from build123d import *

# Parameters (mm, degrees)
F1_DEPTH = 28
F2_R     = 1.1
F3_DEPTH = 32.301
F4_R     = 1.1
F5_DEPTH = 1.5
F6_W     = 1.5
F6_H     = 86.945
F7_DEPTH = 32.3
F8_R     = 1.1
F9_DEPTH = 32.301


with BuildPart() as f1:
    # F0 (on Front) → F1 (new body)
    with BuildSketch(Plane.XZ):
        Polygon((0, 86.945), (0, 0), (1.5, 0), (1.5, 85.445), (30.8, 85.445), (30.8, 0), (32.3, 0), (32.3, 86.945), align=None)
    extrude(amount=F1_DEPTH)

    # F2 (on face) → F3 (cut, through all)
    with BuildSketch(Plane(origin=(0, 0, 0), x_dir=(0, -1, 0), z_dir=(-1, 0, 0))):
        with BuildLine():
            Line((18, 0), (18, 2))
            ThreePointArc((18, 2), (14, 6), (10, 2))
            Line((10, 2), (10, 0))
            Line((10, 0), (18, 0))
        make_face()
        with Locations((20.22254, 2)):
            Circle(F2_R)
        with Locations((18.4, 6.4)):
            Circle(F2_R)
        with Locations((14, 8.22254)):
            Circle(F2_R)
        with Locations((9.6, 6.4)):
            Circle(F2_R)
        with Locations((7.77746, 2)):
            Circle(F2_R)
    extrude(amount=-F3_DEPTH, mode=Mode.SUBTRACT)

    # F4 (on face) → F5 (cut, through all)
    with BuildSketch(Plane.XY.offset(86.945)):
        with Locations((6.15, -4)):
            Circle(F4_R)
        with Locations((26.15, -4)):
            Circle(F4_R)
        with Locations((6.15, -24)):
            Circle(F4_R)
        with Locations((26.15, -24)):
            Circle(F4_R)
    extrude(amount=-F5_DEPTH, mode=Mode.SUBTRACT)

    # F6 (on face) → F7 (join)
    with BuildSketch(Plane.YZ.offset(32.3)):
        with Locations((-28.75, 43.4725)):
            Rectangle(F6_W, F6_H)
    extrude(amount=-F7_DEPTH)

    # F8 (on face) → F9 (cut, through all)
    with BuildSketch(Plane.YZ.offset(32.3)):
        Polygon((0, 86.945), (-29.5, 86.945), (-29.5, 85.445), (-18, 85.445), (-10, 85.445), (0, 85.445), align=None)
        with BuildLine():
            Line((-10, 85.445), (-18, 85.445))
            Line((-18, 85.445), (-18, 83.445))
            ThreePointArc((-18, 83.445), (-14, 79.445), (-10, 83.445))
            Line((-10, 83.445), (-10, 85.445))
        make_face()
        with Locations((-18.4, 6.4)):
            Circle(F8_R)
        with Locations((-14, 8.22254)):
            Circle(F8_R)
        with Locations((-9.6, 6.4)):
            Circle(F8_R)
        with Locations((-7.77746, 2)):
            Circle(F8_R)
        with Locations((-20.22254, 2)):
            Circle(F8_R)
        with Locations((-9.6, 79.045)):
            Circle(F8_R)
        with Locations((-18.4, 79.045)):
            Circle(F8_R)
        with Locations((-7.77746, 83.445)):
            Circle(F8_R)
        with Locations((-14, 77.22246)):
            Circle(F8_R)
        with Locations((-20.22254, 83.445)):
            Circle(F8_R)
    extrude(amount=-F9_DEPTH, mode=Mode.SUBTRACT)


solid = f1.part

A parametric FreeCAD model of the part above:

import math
import FreeCAD as App
import Part
import Sketcher

V = App.Vector
Q = App.Units.Quantity

doc = App.newDocument("Part")
body = doc.addObject("PartDesign::Body", "Body")

# Sketch on XZ plane
sketch1 = body.newObject("Sketcher::SketchObject", "Sketch")
sketch1.AttachmentSupport = (doc.getObject("XZ_Plane"), [""])
sketch1.MapMode = "FlatFace"
sketch1.addGeometry(Part.LineSegment(V(0, 86.945, 0), V(0, 0, 0)), False)
sketch1.addGeometry(Part.LineSegment(V(0, 0, 0), V(1.5, 0, 0)), False)
sketch1.addGeometry(Part.LineSegment(V(1.5, 0, 0), V(1.5, 85.445, 0)), False)
sketch1.addGeometry(Part.LineSegment(V(1.5, 85.445, 0), V(30.8, 85.445, 0)), False)
sketch1.addGeometry(Part.LineSegment(V(30.8, 85.445, 0), V(30.8, 0, 0)), False)
sketch1.addGeometry(Part.LineSegment(V(30.8, 0, 0), V(32.3, 0, 0)), False)
sketch1.addGeometry(Part.LineSegment(V(32.3, 0, 0), V(32.3, 86.945, 0)), False)
sketch1.addGeometry(Part.LineSegment(V(32.3, 86.945, 0), V(0, 86.945, 0)), False)
sketch1.addConstraint(Sketcher.Constraint("Coincident", 0, 2, 1, 1))
sketch1.addConstraint(Sketcher.Constraint("Coincident", 1, 2, 2, 1))
sketch1.addConstraint(Sketcher.Constraint("Coincident", 2, 2, 3, 1))
sketch1.addConstraint(Sketcher.Constraint("Coincident", 3, 2, 4, 1))
sketch1.addConstraint(Sketcher.Constraint("Coincident", 4, 2, 5, 1))
sketch1.addConstraint(Sketcher.Constraint("Coincident", 5, 2, 6, 1))
sketch1.addConstraint(Sketcher.Constraint("Coincident", 6, 2, 7, 1))
sketch1.addConstraint(Sketcher.Constraint("Coincident", 7, 2, 0, 1))
sketch1.addConstraint(Sketcher.Constraint("Vertical", 0))
sketch1.addConstraint(Sketcher.Constraint("Horizontal", 1))
sketch1.addConstraint(Sketcher.Constraint("Vertical", 2))
sketch1.addConstraint(Sketcher.Constraint("Horizontal", 3))
sketch1.addConstraint(Sketcher.Constraint("Vertical", 4))
sketch1.addConstraint(Sketcher.Constraint("Horizontal", 5))
sketch1.addConstraint(Sketcher.Constraint("Vertical", 6))
sketch1.addConstraint(Sketcher.Constraint("Horizontal", 7))
sketch1.addConstraint(Sketcher.Constraint("Coincident", 0, 2, -1, 1))
sketch1.addConstraint(Sketcher.Constraint("PointOnObject", 4, 2, -1))
sketch1.addConstraint(Sketcher.Constraint("Equal", 1, 5))
sketch1.addConstraint(Sketcher.Constraint("DistanceX", 1, 1, 1, 2, Q("1.5 mm")))
sketch1.addConstraint(Sketcher.Constraint("DistanceX", 3, 1, 3, 2, Q("29.3 mm")))
sketch1.addConstraint(Sketcher.Constraint("DistanceY", 3, 2, 6, 2, Q("1.5 mm")))
sketch1.addConstraint(Sketcher.Constraint("DistanceY", 0, 2, 0, 1, Q("86.945 mm")))
pad1 = body.newObject("PartDesign::Pad", "Pad")
pad1.Profile = sketch1
pad1.Length = 28

# Sketch on YZ plane
sketch2 = body.newObject("Sketcher::SketchObject", "Sketch001")
sketch2.AttachmentSupport = (doc.getObject("YZ_Plane"), [""])
sketch2.MapMode = "FlatFace"
sketch2.addGeometry(Part.LineSegment(V(-18, 0, 0), V(-18, 2, 0)), False)
sketch2.addGeometry(Part.ArcOfCircle(Part.Circle(V(-14, 2, 0), V(0, 0, 1), 4), math.radians(0), math.radians(180)), False)
sketch2.addGeometry(Part.LineSegment(V(-10, 2, 0), V(-10, 0, 0)), False)
sketch2.addGeometry(Part.LineSegment(V(-10, 0, 0), V(-18, 0, 0)), False)
sketch2.addGeometry(Part.Circle(V(-20.22254, 2, 0), V(0, 0, 1), 1.1), False)
sketch2.addGeometry(Part.Circle(V(-18.4, 6.4, 0), V(0, 0, 1), 1.1), False)
sketch2.addGeometry(Part.Circle(V(-14, 8.22254, 0), V(0, 0, 1), 1.1), False)
sketch2.addGeometry(Part.Circle(V(-9.6, 6.4, 0), V(0, 0, 1), 1.1), False)
sketch2.addGeometry(Part.Circle(V(-7.77746, 2, 0), V(0, 0, 1), 1.1), False)
sketch2.addConstraint(Sketcher.Constraint("Tangent", 0, 2, 1, 2))
sketch2.addConstraint(Sketcher.Constraint("Tangent", 1, 1, 2, 1))
sketch2.addConstraint(Sketcher.Constraint("Coincident", 2, 2, 3, 1))
sketch2.addConstraint(Sketcher.Constraint("Coincident", 3, 2, 0, 1))
sketch2.addConstraint(Sketcher.Constraint("Vertical", 0))
sketch2.addConstraint(Sketcher.Constraint("Vertical", 2))
sketch2.addConstraint(Sketcher.Constraint("Horizontal", 3))
sketch2.addConstraint(Sketcher.Constraint("Equal", 4, 5))
sketch2.addConstraint(Sketcher.Constraint("Equal", 5, 6))
sketch2.addConstraint(Sketcher.Constraint("Equal", 6, 7))
sketch2.addConstraint(Sketcher.Constraint("Equal", 7, 8))
sketch2.addConstraint(Sketcher.Constraint("PointOnObject", 2, 2, -1))
sketch2.addConstraint(Sketcher.Constraint("Horizontal", 1, 3, 4, 3))
sketch2.addConstraint(Sketcher.Constraint("Horizontal", 5, 3, 7, 3))
sketch2.addConstraint(Sketcher.Constraint("Horizontal", 4, 3, 8, 3))
sketch2.addConstraint(Sketcher.Constraint("Vertical", 1, 3, 6, 3))
sketch2.addConstraint(Sketcher.Constraint("Radius", 1, Q("4 mm")))
sketch2.addConstraint(Sketcher.Constraint("Diameter", 4, Q("2.2 mm")))
sketch2.addConstraint(Sketcher.Constraint("DistanceY", 0, 1, 0, 2, Q("2 mm")))
sketch2.addConstraint(Sketcher.Constraint("DistanceX", 1, 3, -1, 1, Q("14 mm")))
sketch2.addConstraint(Sketcher.Constraint("DistanceX", 5, 3, -1, 1, Q("18.4 mm")))
sketch2.addConstraint(Sketcher.Constraint("DistanceY", -1, 1, 5, 3, Q("6.4 mm")))
sketch2.addConstraint(Sketcher.Constraint("DistanceX", 7, 3, -1, 1, Q("9.6 mm")))
sketch2.addConstraint(Sketcher.Constraint("DistanceX", 4, 3, -1, 1, Q("20.22254 mm")))
sketch2.addConstraint(Sketcher.Constraint("DistanceY", -1, 1, 6, 3, Q("8.22254 mm")))
sketch2.addConstraint(Sketcher.Constraint("DistanceX", 8, 3, -1, 1, Q("7.77746 mm")))
pocket1 = body.newObject("PartDesign::Pocket", "Pocket")
pocket1.Profile = sketch2
pocket1.Type = "ThroughAll"
pocket1.Reversed = True

# Sketch on XY plane
sketch3 = body.newObject("Sketcher::SketchObject", "Sketch002")
sketch3.AttachmentSupport = (doc.getObject("XY_Plane"), [""])
sketch3.MapMode = "FlatFace"
sketch3.AttachmentOffset = App.Placement(V(0, 0, 86.945), App.Rotation())
sketch3.addGeometry(Part.Circle(V(6.15, -4, 0), V(0, 0, 1), 1.1), False)
sketch3.addGeometry(Part.Circle(V(26.15, -4, 0), V(0, 0, 1), 1.1), False)
sketch3.addGeometry(Part.Circle(V(6.15, -24, 0), V(0, 0, 1), 1.1), False)
sketch3.addGeometry(Part.Circle(V(26.15, -24, 0), V(0, 0, 1), 1.1), False)
sketch3.addConstraint(Sketcher.Constraint("Equal", 0, 1))
sketch3.addConstraint(Sketcher.Constraint("Equal", 1, 2))
sketch3.addConstraint(Sketcher.Constraint("Equal", 2, 3))
sketch3.addConstraint(Sketcher.Constraint("Horizontal", 0, 3, 1, 3))
sketch3.addConstraint(Sketcher.Constraint("Horizontal", 2, 3, 3, 3))
sketch3.addConstraint(Sketcher.Constraint("Vertical", 0, 3, 2, 3))
sketch3.addConstraint(Sketcher.Constraint("Vertical", 1, 3, 3, 3))
sketch3.addConstraint(Sketcher.Constraint("Diameter", 0, Q("2.2 mm")))
sketch3.addConstraint(Sketcher.Constraint("DistanceY", 0, 3, -1, 1, Q("4 mm")))
sketch3.addConstraint(Sketcher.Constraint("DistanceY", 2, 3, -1, 1, Q("24 mm")))
sketch3.addConstraint(Sketcher.Constraint("DistanceX", 0, 3, 1, 3, Q("20 mm")))
sketch3.addConstraint(Sketcher.Constraint("DistanceX", -1, 1, 0, 3, Q("6.15 mm")))
pocket2 = body.newObject("PartDesign::Pocket", "Pocket001")
pocket2.Profile = sketch3
pocket2.Type = "ThroughAll"

# Sketch on YZ plane
sketch4 = body.newObject("Sketcher::SketchObject", "Sketch003")
sketch4.AttachmentSupport = (doc.getObject("YZ_Plane"), [""])
sketch4.MapMode = "FlatFace"
sketch4.AttachmentOffset = App.Placement(V(0, 0, 32.3), App.Rotation())
sketch4.addGeometry(Part.LineSegment(V(-29.5, 86.945, 0), V(-29.5, 0, 0)), False)
sketch4.addGeometry(Part.LineSegment(V(-29.5, 0, 0), V(-28, 0, 0)), False)
sketch4.addGeometry(Part.LineSegment(V(-28, 0, 0), V(-28, 86.945, 0)), False)
sketch4.addGeometry(Part.LineSegment(V(-28, 86.945, 0), V(-29.5, 86.945, 0)), False)
sketch4.addConstraint(Sketcher.Constraint("Coincident", 0, 2, 1, 1))
sketch4.addConstraint(Sketcher.Constraint("Coincident", 1, 2, 2, 1))
sketch4.addConstraint(Sketcher.Constraint("Coincident", 2, 2, 3, 1))
sketch4.addConstraint(Sketcher.Constraint("Coincident", 3, 2, 0, 1))
sketch4.addConstraint(Sketcher.Constraint("Vertical", 0))
sketch4.addConstraint(Sketcher.Constraint("Horizontal", 1))
sketch4.addConstraint(Sketcher.Constraint("Vertical", 2))
sketch4.addConstraint(Sketcher.Constraint("Horizontal", 3))
sketch4.addConstraint(Sketcher.Constraint("PointOnObject", 0, 2, -1))
sketch4.addConstraint(Sketcher.Constraint("DistanceX", 1, 1, 1, 2, Q("1.5 mm")))
sketch4.addConstraint(Sketcher.Constraint("DistanceX", 1, 2, -1, 1, Q("28 mm")))
sketch4.addConstraint(Sketcher.Constraint("DistanceY", 0, 2, 0, 1, Q("86.945 mm")))
pad2 = body.newObject("PartDesign::Pad", "Pad001")
pad2.Profile = sketch4
pad2.Length = 32.3
pad2.Reversed = True

# Sketch on YZ plane
sketch5 = body.newObject("Sketcher::SketchObject", "Sketch004")
sketch5.AttachmentSupport = (doc.getObject("YZ_Plane"), [""])
sketch5.MapMode = "FlatFace"
sketch5.AttachmentOffset = App.Placement(V(0, 0, 32.3), App.Rotation())
sketch5.addGeometry(Part.LineSegment(V(0, 86.945, 0), V(-29.5, 86.945, 0)), False)
sketch5.addGeometry(Part.LineSegment(V(-29.5, 86.945, 0), V(-29.5, 85.445, 0)), False)
sketch5.addGeometry(Part.LineSegment(V(-29.5, 85.445, 0), V(-18, 85.445, 0)), False)
sketch5.addGeometry(Part.LineSegment(V(-18, 85.445, 0), V(-18, 83.445, 0)), False)
sketch5.addGeometry(Part.ArcOfCircle(Part.Circle(V(-14, 83.445, 0), V(0, 0, 1), 4), math.radians(180), math.radians(360)), False)
sketch5.addGeometry(Part.LineSegment(V(-10, 83.445, 0), V(-10, 85.445, 0)), False)
sketch5.addGeometry(Part.LineSegment(V(-10, 85.445, 0), V(0, 85.445, 0)), False)
sketch5.addGeometry(Part.LineSegment(V(0, 85.445, 0), V(0, 86.945, 0)), False)
sketch5.addGeometry(Part.Circle(V(-18.4, 6.4, 0), V(0, 0, 1), 1.1), False)
sketch5.addGeometry(Part.Circle(V(-14, 8.22254, 0), V(0, 0, 1), 1.1), False)
sketch5.addGeometry(Part.Circle(V(-9.6, 6.4, 0), V(0, 0, 1), 1.1), False)
sketch5.addGeometry(Part.Circle(V(-7.77746, 2, 0), V(0, 0, 1), 1.1), False)
sketch5.addGeometry(Part.Circle(V(-20.22254, 2, 0), V(0, 0, 1), 1.1), False)
sketch5.addGeometry(Part.Circle(V(-9.6, 79.045, 0), V(0, 0, 1), 1.1), False)
sketch5.addGeometry(Part.Circle(V(-18.4, 79.045, 0), V(0, 0, 1), 1.1), False)
sketch5.addGeometry(Part.Circle(V(-7.77746, 83.445, 0), V(0, 0, 1), 1.1), False)
sketch5.addGeometry(Part.Circle(V(-14, 77.22246, 0), V(0, 0, 1), 1.1), False)
sketch5.addGeometry(Part.Circle(V(-20.22254, 83.445, 0), V(0, 0, 1), 1.1), False)
sketch5.addConstraint(Sketcher.Constraint("Coincident", 0, 2, 1, 1))
sketch5.addConstraint(Sketcher.Constraint("Coincident", 1, 2, 2, 1))
sketch5.addConstraint(Sketcher.Constraint("Coincident", 2, 2, 3, 1))
sketch5.addConstraint(Sketcher.Constraint("Tangent", 3, 2, 4, 1))
sketch5.addConstraint(Sketcher.Constraint("Tangent", 4, 2, 5, 1))
sketch5.addConstraint(Sketcher.Constraint("Coincident", 5, 2, 6, 1))
sketch5.addConstraint(Sketcher.Constraint("Coincident", 6, 2, 7, 1))
sketch5.addConstraint(Sketcher.Constraint("Coincident", 7, 2, 0, 1))
sketch5.addConstraint(Sketcher.Constraint("Horizontal", 0))
sketch5.addConstraint(Sketcher.Constraint("Vertical", 1))
sketch5.addConstraint(Sketcher.Constraint("Horizontal", 2))
sketch5.addConstraint(Sketcher.Constraint("Vertical", 3))
sketch5.addConstraint(Sketcher.Constraint("Vertical", 5))
sketch5.addConstraint(Sketcher.Constraint("Horizontal", 6))
sketch5.addConstraint(Sketcher.Constraint("Vertical", 7))
sketch5.addConstraint(Sketcher.Constraint("Equal", 8, 9))
sketch5.addConstraint(Sketcher.Constraint("Equal", 9, 10))
sketch5.addConstraint(Sketcher.Constraint("Equal", 10, 11))
sketch5.addConstraint(Sketcher.Constraint("Equal", 11, 12))
sketch5.addConstraint(Sketcher.Constraint("Equal", 12, 13))
sketch5.addConstraint(Sketcher.Constraint("Equal", 13, 14))
sketch5.addConstraint(Sketcher.Constraint("Equal", 14, 15))
sketch5.addConstraint(Sketcher.Constraint("Equal", 15, 16))
sketch5.addConstraint(Sketcher.Constraint("Equal", 16, 17))
sketch5.addConstraint(Sketcher.Constraint("PointOnObject", 6, 2, -2))
sketch5.addConstraint(Sketcher.Constraint("Horizontal", 8, 3, 10, 3))
sketch5.addConstraint(Sketcher.Constraint("Horizontal", 11, 3, 12, 3))
sketch5.addConstraint(Sketcher.Constraint("Horizontal", 13, 3, 14, 3))
sketch5.addConstraint(Sketcher.Constraint("Horizontal", 4, 3, 15, 3))
sketch5.addConstraint(Sketcher.Constraint("Horizontal", 15, 3, 17, 3))
sketch5.addConstraint(Sketcher.Constraint("Horizontal", 2, 2, 5, 2))
sketch5.addConstraint(Sketcher.Constraint("Vertical", 4, 3, 9, 3))
sketch5.addConstraint(Sketcher.Constraint("Vertical", 10, 3, 13, 3))
sketch5.addConstraint(Sketcher.Constraint("Vertical", 8, 3, 14, 3))
sketch5.addConstraint(Sketcher.Constraint("Vertical", 11, 3, 15, 3))
sketch5.addConstraint(Sketcher.Constraint("Vertical", 9, 3, 16, 3))
sketch5.addConstraint(Sketcher.Constraint("Vertical", 12, 3, 17, 3))
sketch5.addConstraint(Sketcher.Constraint("Radius", 4, Q("4 mm")))
sketch5.addConstraint(Sketcher.Constraint("Diameter", 8, Q("2.2 mm")))
sketch5.addConstraint(Sketcher.Constraint("DistanceX", 6, 1, 6, 2, Q("10 mm")))
sketch5.addConstraint(Sketcher.Constraint("DistanceY", 3, 2, 3, 1, Q("2 mm")))
sketch5.addConstraint(Sketcher.Constraint("DistanceX", 0, 2, 0, 1, Q("29.5 mm")))
sketch5.addConstraint(Sketcher.Constraint("DistanceY", 1, 2, 1, 1, Q("1.5 mm")))
sketch5.addConstraint(Sketcher.Constraint("DistanceY", -1, 1, 11, 3, Q("2 mm")))
sketch5.addConstraint(Sketcher.Constraint("DistanceX", 8, 3, -1, 1, Q("18.4 mm")))
sketch5.addConstraint(Sketcher.Constraint("DistanceY", -1, 1, 8, 3, Q("6.4 mm")))
sketch5.addConstraint(Sketcher.Constraint("DistanceX", 10, 3, -1, 1, Q("9.6 mm")))
sketch5.addConstraint(Sketcher.Constraint("DistanceY", 13, 3, 4, 3, Q("4.4 mm")))
sketch5.addConstraint(Sketcher.Constraint("DistanceY", -1, 1, 4, 3, Q("83.445 mm")))
sketch5.addConstraint(Sketcher.Constraint("DistanceY", -1, 1, 9, 3, Q("8.22254 mm")))
sketch5.addConstraint(Sketcher.Constraint("DistanceX", 11, 3, -1, 1, Q("7.77746 mm")))
sketch5.addConstraint(Sketcher.Constraint("DistanceX", 12, 3, -1, 1, Q("20.22254 mm")))
sketch5.addConstraint(Sketcher.Constraint("DistanceY", -1, 1, 16, 3, Q("77.22246 mm")))
pocket3 = body.newObject("PartDesign::Pocket", "Pocket002")
pocket3.Profile = sketch5
pocket3.Type = "ThroughAll"

doc.recompute()
